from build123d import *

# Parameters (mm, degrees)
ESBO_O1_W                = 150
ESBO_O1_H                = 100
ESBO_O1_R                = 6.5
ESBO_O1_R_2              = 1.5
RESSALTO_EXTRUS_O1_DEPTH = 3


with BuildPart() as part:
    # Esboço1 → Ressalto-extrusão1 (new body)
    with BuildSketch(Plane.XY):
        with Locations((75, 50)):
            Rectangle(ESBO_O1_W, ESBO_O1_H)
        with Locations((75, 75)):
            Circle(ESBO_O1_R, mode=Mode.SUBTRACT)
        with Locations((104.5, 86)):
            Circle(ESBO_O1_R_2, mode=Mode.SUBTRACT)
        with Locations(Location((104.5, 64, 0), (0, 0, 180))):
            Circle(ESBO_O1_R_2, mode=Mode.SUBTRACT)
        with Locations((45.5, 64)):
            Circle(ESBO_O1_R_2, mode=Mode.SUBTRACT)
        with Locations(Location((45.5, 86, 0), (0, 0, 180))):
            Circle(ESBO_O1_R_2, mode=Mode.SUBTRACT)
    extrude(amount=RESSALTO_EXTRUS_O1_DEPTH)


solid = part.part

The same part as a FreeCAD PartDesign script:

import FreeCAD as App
import Part
import Sketcher
from FreeCAD import Vector
Q = App.Units.Quantity


def add_polygon(sketch, points):
    """Adds a closed chain of lines whose ends are joined by coincident constraints."""
    first, n = sketch.GeometryCount, len(points)
    for a, b in zip(points, points[1:] + points[:1]):
        sketch.addGeometry(Part.LineSegment(App.Vector(*a, 0), App.Vector(*b, 0)), False)
    for i in range(n):
        sketch.addConstraint(Sketcher.Constraint("Coincident", first + i, 2, first + (i + 1) % n, 1))

doc = App.newDocument("Part")
body = doc.addObject("PartDesign::Body", "Body")

# Sketch on XY plane
sketch1 = body.newObject("Sketcher::SketchObject", "Sketch")
sketch1.AttachmentSupport = (doc.getObject("XY_Plane"), [""])
sketch1.MapMode = "FlatFace"
add_polygon(sketch1, [(0, 100), (0, 0), (150, 0), (150, 100)])  # lines 0-3
sketch1.addGeometry(Part.Circle(Vector(45.5, 64, 0), Vector(0, 0, 1), 1.5), False)  # 4
sketch1.addGeometry(Part.Circle(Vector(104.5, 64, 0), Vector(0, 0, 1), 1.5), False)  # 5
sketch1.addGeometry(Part.Circle(Vector(45.5, 86, 0), Vector(0, 0, 1), 1.5), False)  # 6
sketch1.addGeometry(Part.Circle(Vector(75, 75, 0), Vector(0, 0, 1), 6.5), False)  # 7
sketch1.addGeometry(Part.Circle(Vector(104.5, 86, 0), Vector(0, 0, 1), 1.5), False)  # 8
sketch1.addConstraint(Sketcher.Constraint("Vertical", 0))
sketch1.addConstraint(Sketcher.Constraint("Horizontal", 1))
sketch1.addConstraint(Sketcher.Constraint("Vertical", 2))
sketch1.addConstraint(Sketcher.Constraint("Horizontal", 3))
sketch1.addConstraint(Sketcher.Constraint("Coincident", 0, 2, -1, 1))
sketch1.addConstraint(Sketcher.Constraint("Equal", 4, 5))
sketch1.addConstraint(Sketcher.Constraint("Equal", 5, 6))
sketch1.addConstraint(Sketcher.Constraint("Equal", 6, 8))
sketch1.addConstraint(Sketcher.Constraint("Horizontal", 4, 3, 5, 3))
sketch1.addConstraint(Sketcher.Constraint("Horizontal", 6, 3, 8, 3))
sketch1.addConstraint(Sketcher.Constraint("Vertical", 4, 3, 6, 3))
sketch1.addConstraint(Sketcher.Constraint("Vertical", 5, 3, 8, 3))
sketch1.addConstraint(Sketcher.Constraint("Diameter", 4, Q("3 mm")))
sketch1.addConstraint(Sketcher.Constraint("Diameter", 7, Q("13 mm")))
sketch1.addConstraint(Sketcher.Constraint("DistanceX", 1, 1, 1, 2, Q("150 mm")))
sketch1.addConstraint(Sketcher.Constraint("DistanceY", 0, 2, 0, 1, Q("100 mm")))
sketch1.addConstraint(Sketcher.Constraint("DistanceY", -1, 1, 4, 3, Q("64 mm")))
sketch1.addConstraint(Sketcher.Constraint("DistanceY", -1, 1, 6, 3, Q("86 mm")))
sketch1.addConstraint(Sketcher.Constraint("DistanceX", -1, 1, 7, 3, Q("75 mm")))
sketch1.addConstraint(Sketcher.Constraint("DistanceY", -1, 1, 7, 3, Q("75 mm")))
sketch1.addConstraint(Sketcher.Constraint("DistanceX", 4, 3, 5, 3, Q("59 mm")))
sketch1.addConstraint(Sketcher.Constraint("DistanceX", -1, 1, 4, 3, Q("45.5 mm")))
pad1 = body.newObject("PartDesign::Pad", "Pad")
pad1.Profile = sketch1
pad1.Length = 3

doc.recompute()
